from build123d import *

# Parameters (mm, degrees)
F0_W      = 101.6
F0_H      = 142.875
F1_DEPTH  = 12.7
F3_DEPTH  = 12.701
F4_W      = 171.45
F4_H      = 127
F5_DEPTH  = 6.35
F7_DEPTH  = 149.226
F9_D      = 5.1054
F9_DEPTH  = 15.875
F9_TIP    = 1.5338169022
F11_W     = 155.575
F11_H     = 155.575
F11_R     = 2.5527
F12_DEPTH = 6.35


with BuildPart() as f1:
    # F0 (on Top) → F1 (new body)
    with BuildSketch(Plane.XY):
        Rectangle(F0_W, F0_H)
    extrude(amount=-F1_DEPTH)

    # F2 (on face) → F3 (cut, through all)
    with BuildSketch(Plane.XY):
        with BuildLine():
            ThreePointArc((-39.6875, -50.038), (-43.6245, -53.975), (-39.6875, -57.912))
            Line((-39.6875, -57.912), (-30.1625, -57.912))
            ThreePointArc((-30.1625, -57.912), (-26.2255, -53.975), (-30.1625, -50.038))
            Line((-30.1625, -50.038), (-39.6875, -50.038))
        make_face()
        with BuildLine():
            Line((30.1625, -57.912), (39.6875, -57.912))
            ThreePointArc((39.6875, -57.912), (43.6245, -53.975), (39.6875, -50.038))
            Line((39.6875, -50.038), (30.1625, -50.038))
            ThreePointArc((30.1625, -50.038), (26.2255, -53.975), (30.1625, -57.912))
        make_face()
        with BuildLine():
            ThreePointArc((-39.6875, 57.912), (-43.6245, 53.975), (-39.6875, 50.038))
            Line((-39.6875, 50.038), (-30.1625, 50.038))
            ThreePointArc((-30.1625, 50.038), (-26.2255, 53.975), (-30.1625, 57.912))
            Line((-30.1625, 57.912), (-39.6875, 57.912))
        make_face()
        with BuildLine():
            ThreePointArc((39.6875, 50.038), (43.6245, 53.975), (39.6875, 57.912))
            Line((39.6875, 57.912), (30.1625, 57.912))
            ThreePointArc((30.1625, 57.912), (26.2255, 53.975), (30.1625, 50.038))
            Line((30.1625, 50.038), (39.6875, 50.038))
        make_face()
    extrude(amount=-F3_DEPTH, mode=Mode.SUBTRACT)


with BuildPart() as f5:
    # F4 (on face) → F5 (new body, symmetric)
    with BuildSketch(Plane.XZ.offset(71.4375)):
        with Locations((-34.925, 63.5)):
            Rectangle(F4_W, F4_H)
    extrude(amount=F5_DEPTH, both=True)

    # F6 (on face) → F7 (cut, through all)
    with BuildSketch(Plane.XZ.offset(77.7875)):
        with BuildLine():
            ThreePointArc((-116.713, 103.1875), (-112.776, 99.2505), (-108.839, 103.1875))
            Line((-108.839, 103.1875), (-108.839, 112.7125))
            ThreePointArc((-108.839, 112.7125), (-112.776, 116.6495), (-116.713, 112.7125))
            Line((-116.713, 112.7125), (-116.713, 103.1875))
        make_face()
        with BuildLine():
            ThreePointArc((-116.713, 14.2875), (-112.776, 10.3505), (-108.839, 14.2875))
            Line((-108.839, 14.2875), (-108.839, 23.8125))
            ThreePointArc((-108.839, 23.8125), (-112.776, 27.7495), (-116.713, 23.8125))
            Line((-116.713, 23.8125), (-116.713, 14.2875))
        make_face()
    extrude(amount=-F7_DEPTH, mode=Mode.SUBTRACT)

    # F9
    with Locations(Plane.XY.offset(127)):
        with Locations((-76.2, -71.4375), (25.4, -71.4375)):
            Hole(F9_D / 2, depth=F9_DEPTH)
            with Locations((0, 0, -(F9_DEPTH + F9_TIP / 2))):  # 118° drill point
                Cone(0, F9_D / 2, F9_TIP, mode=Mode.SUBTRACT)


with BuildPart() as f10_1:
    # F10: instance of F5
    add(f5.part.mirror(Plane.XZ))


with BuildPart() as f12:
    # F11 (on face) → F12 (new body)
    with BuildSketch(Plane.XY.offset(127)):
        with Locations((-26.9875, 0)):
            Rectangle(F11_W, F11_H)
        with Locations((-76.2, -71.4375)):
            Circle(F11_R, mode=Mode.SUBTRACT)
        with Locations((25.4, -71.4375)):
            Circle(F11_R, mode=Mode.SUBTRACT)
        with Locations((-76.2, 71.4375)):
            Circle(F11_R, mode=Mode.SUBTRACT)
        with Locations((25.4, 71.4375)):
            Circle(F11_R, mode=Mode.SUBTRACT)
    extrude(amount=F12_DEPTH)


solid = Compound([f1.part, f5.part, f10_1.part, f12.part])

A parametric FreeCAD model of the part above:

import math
import FreeCAD as App
import Part
import Sketcher
Q = App.Units.Quantity

doc = App.newDocument("Part")
params = doc.addObject("Spreadsheet::Sheet", "Params")
for row, (alias, value) in enumerate([
    ("sketch1_width", "4 in"),
    ("sketch1_height", "5.625 in"),
    ("pad1_length", "0.5 in"),
    ("sketch2_radius", "0.155 in"),
    ("sketch2_width", "0.375 in"),
    ("sketch3_height", "5 in"),
    ("sketch3_width", "6.75 in"),
    ("pad2_length", "0.5 in"),
    ("sketch4_radius", "0.155 in"),
    ("sketch4_height", "0.375 in"),
    ("sketch5_diameter", "0.201 in"),
    ("hole_diameter", "0.201 in"),
    ("hole_depth", "0.625 in"),
    ("sketch6_diameter", "0.201 in"),
    ("sketch6_width", "6.125 in"),
    ("pad3_length", "0.25 in"),
], start=1):
    params.set(f"A{row}", alias)
    params.set(f"B{row}", "=" + value)
    params.setAlias(f"B{row}", alias)

body = doc.addObject("PartDesign::Body", "Body")

# Sketch on XY plane
sketch1 = body.newObject("Sketcher::SketchObject", "Sketch")
sketch1.AttachmentSupport = (doc.getObject("XY_Plane"), [""])
sketch1.MapMode = "FlatFace"
sketch1.addGeometry([
    Part.LineSegment(App.Vector(-51, 71, 0), App.Vector(-51, -71, 0)),
    Part.LineSegment(App.Vector(-51, -71, 0), App.Vector(51, -71, 0)),
    Part.LineSegment(App.Vector(51, -71, 0), App.Vector(51, 71, 0)),
    Part.LineSegment(App.Vector(51, 71, 0), App.Vector(-51, 71, 0)),
], False)
sketch1.addConstraint([
    Sketcher.Constraint("Coincident", 0, 2, 1, 1),
    Sketcher.Constraint("Coincident", 1, 2, 2, 1),
    Sketcher.Constraint("Coincident", 2, 2, 3, 1),
    Sketcher.Constraint("Coincident", 3, 2, 0, 1),
    Sketcher.Constraint("Vertical", 0),
    Sketcher.Constraint("Horizontal", 1),
    Sketcher.Constraint("Vertical", 2),
    Sketcher.Constraint("Horizontal", 3),
    Sketcher.Constraint("Symmetric", 0, 2, 2, 2, -1, 1),
    Sketcher.Constraint("DistanceX", 1, 1, 1, 2, Q("4 in")),
    Sketcher.Constraint("DistanceY", 0, 2, 0, 1, Q("5.625 in")),
])
sketch1.setExpression("Constraints[9]", "Params.sketch1_width")
sketch1.setExpression("Constraints[10]", "Params.sketch1_height")
pad1 = body.newObject("PartDesign::Pad", "Pad")
pad1.Profile = sketch1
pad1.setExpression("Length", "Params.pad1_length")
pad1.Reversed = True

# Sketch on XY plane
sketch2 = body.newObject("Sketcher::SketchObject", "Sketch001")
sketch2.AttachmentSupport = (doc.getObject("XY_Plane"), [""])
sketch2.MapMode = "FlatFace"
sketch2.addGeometry([
    Part.ArcOfCircle(Part.Circle(App.Vector(-39.7, -54, 0), App.Vector(0, 0, 1), 3.9), math.radians(90), math.radians(270)),  # 0
    Part.LineSegment(App.Vector(-39.7, -57.9, 0), App.Vector(-30.2, -57.9, 0)),  # 1
    Part.ArcOfCircle(Part.Circle(App.Vector(-30.2, -54, 0), App.Vector(0, 0, 1), 3.9), math.radians(-90), math.radians(90)),  # 2
    Part.LineSegment(App.Vector(-30.2, -50, 0), App.Vector(-39.7, -50, 0)),  # 3
    Part.LineSegment(App.Vector(30.2, -57.9, 0), App.Vector(39.7, -57.9, 0)),  # 4
    Part.ArcOfCircle(Part.Circle(App.Vector(39.7, -54, 0), App.Vector(0, 0, 1), 3.9), math.radians(-90), math.radians(90)),  # 5
    Part.LineSegment(App.Vector(39.7, -50, 0), App.Vector(30.2, -50, 0)),  # 6
    Part.ArcOfCircle(Part.Circle(App.Vector(30.2, -54, 0), App.Vector(0, 0, 1), 3.9), math.radians(90), math.radians(270)),  # 7
    Part.ArcOfCircle(Part.Circle(App.Vector(-39.7, 54, 0), App.Vector(0, 0, 1), 3.9), math.radians(90), math.radians(270)),  # 8
    Part.LineSegment(App.Vector(-39.7, 50, 0), App.Vector(-30.2, 50, 0)),  # 9
    Part.ArcOfCircle(Part.Circle(App.Vector(-30.2, 54, 0), App.Vector(0, 0, 1), 3.9), math.radians(-90), math.radians(90)),  # 10
    Part.LineSegment(App.Vector(-30.2, 57.9, 0), App.Vector(-39.7, 57.9, 0)),  # 11
    Part.ArcOfCircle(Part.Circle(App.Vector(39.7, 54, 0), App.Vector(0, 0, 1), 3.9), math.radians(-90), math.radians(90)),  # 12
    Part.LineSegment(App.Vector(39.7, 57.9, 0), App.Vector(30.2, 57.9, 0)),  # 13
    Part.ArcOfCircle(Part.Circle(App.Vector(30.2, 54, 0), App.Vector(0, 0, 1), 3.9), math.radians(90), math.radians(270)),  # 14
    Part.LineSegment(App.Vector(30.2, 50, 0), App.Vector(39.7, 50, 0)),  # 15
], False)
sketch2.addConstraint([
    Sketcher.Constraint("Tangent", 0, 2, 1, 1),
    Sketcher.Constraint("Tangent", 1, 2, 2, 1),
    Sketcher.Constraint("Tangent", 2, 2, 3, 1),
    Sketcher.Constraint("Tangent", 3, 2, 0, 1),
    Sketcher.Constraint("Tangent", 4, 2, 5, 1),
    Sketcher.Constraint("Tangent", 5, 2, 6, 1),
    Sketcher.Constraint("Tangent", 6, 2, 7, 1),
    Sketcher.Constraint("Tangent", 7, 2, 4, 1),
    Sketcher.Constraint("Tangent", 8, 2, 9, 1),
    Sketcher.Constraint("Tangent", 9, 2, 10, 1),
    Sketcher.Constraint("Tangent", 10, 2, 11, 1),
    Sketcher.Constraint("Tangent", 11, 2, 8, 1),
    Sketcher.Constraint("Tangent", 12, 2, 13, 1),
    Sketcher.Constraint("Tangent", 13, 2, 14, 1),
    Sketcher.Constraint("Tangent", 14, 2, 15, 1),
    Sketcher.Constraint("Tangent", 15, 2, 12, 1),
    Sketcher.Constraint("Horizontal", 1),
    Sketcher.Constraint("Horizontal", 3),
    Sketcher.Constraint("Horizontal", 4),
    Sketcher.Constraint("Horizontal", 6),
    Sketcher.Constraint("Horizontal", 9),
    Sketcher.Constraint("Horizontal", 11),
    Sketcher.Constraint("Horizontal", 13),
    Sketcher.Constraint("Horizontal", 15),
    Sketcher.Constraint("Equal", 2, 5),
    Sketcher.Constraint("Equal", 7, 8),
    Sketcher.Constraint("Equal", 10, 12),
    Sketcher.Constraint("Symmetric", 5, 3, 8, 3, -1, 1),
    Sketcher.Constraint("Symmetric", 0, 3, 12, 3, -1, 1),
    Sketcher.Constraint("Symmetric", 0, 3, 5, 3, -2),
    Sketcher.Constraint("Vertical", 2, 3, 10, 3),
    Sketcher.Constraint("Vertical", 7, 3, 14, 3),
    Sketcher.Constraint("Equal", 3, 4),
    Sketcher.Constraint("Radius", 0, Q("0.155 in")),
    Sketcher.Constraint("DistanceX", 1, 1, 1, 2, Q("0.375 in")),
    Sketcher.Constraint("DistanceY", 0, 2, -1, 1, Q("2.28 in")),
    Sketcher.Constraint("DistanceX", 2, 3, 5, 3, Q("2.75 in")),
])
sketch2.setExpression("Constraints[33]", "Params.sketch2_radius")
sketch2.setExpression("Constraints[34]", "Params.sketch2_width")
pocket1 = body.newObject("PartDesign::Pocket", "Pocket")
pocket1.Profile = sketch2
pocket1.Type = "ThroughAll"
body2 = doc.addObject("PartDesign::Body", "Body001")

# Sketch on XZ plane
sketch3 = body2.newObject("Sketcher::SketchObject", "Sketch002")
sketch3.AttachmentSupport = (doc.getObject("XZ_Plane001"), [""])
sketch3.MapMode = "FlatFace"
sketch3.AttachmentOffset = App.Placement(App.Vector(0, 0, 2.8125 * 25.4), App.Rotation())
sketch3.addGeometry([
    Part.LineSegment(App.Vector(-121, 127, 0), App.Vector(-121, 0, 0)),
    Part.LineSegment(App.Vector(-121, 0, 0), App.Vector(51, 0, 0)),
    Part.LineSegment(App.Vector(51, 0, 0), App.Vector(51, 127, 0)),
    Part.LineSegment(App.Vector(51, 127, 0), App.Vector(-121, 127, 0)),
], False)
sketch3.addConstraint([
    Sketcher.Constraint("Coincident", 0, 2, 1, 1),
    Sketcher.Constraint("Coincident", 1, 2, 2, 1),
    Sketcher.Constraint("Coincident", 2, 2, 3, 1),
    Sketcher.Constraint("Coincident", 3, 2, 0, 1),
    Sketcher.Constraint("Vertical", 0),
    Sketcher.Constraint("Horizontal", 1),
    Sketcher.Constraint("Vertical", 2),
    Sketcher.Constraint("Horizontal", 3),
    Sketcher.Constraint("PointOnObject", 0, 2, -1),
    Sketcher.Constraint("DistanceY", 0, 2, 0, 1, Q("5 in")),
    Sketcher.Constraint("DistanceX", -1, 1, 1, 2, Q("2 in")),
    Sketcher.Constraint("DistanceX", 1, 1, 1, 2, Q("6.75 in")),
])
sketch3.setExpression("Constraints[9]", "Params.sketch3_height")
sketch3.setExpression("Constraints[11]", "Params.sketch3_width")
pad2 = body2.newObject("PartDesign::Pad", "Pad001")
pad2.Profile = sketch3
pad2.setExpression("Length", "Params.pad2_length")
pad2.Midplane = True

# Sketch on XZ plane
sketch4 = body2.newObject("Sketcher::SketchObject", "Sketch003")
sketch4.AttachmentSupport = (doc.getObject("XZ_Plane001"), [""])
sketch4.MapMode = "FlatFace"
sketch4.AttachmentOffset = App.Placement(App.Vector(0, 0, 3.0625 * 25.4), App.Rotation())
sketch4.addGeometry([
    Part.ArcOfCircle(Part.Circle(App.Vector(-112.8, 103.2, 0), App.Vector(0, 0, 1), 3.9), math.radians(180), math.radians(360)),  # 0
    Part.LineSegment(App.Vector(-108.8, 103.2, 0), App.Vector(-108.8, 112.7, 0)),  # 1
    Part.ArcOfCircle(Part.Circle(App.Vector(-112.8, 112.7, 0), App.Vector(0, 0, 1), 3.9), math.radians(0), math.radians(180)),  # 2
    Part.LineSegment(App.Vector(-116.7, 112.7, 0), App.Vector(-116.7, 103.2, 0)),  # 3
    Part.ArcOfCircle(Part.Circle(App.Vector(-112.8, 14.3, 0), App.Vector(0, 0, 1), 3.9), math.radians(180), math.radians(360)),  # 4
    Part.LineSegment(App.Vector(-108.8, 14.3, 0), App.Vector(-108.8, 23.8, 0)),  # 5
    Part.ArcOfCircle(Part.Circle(App.Vector(-112.8, 23.8, 0), App.Vector(0, 0, 1), 3.9), math.radians(0), math.radians(180)),  # 6
    Part.LineSegment(App.Vector(-116.7, 23.8, 0), App.Vector(-116.7, 14.3, 0)),  # 7
], False)
sketch4.addConstraint([
    Sketcher.Constraint("Tangent", 0, 2, 1, 1),
    Sketcher.Constraint("Tangent", 1, 2, 2, 1),
    Sketcher.Constraint("Tangent", 2, 2, 3, 1),
    Sketcher.Constraint("Tangent", 3, 2, 0, 1),
    Sketcher.Constraint("Tangent", 4, 2, 5, 1),
    Sketcher.Constraint("Tangent", 5, 2, 6, 1),
    Sketcher.Constraint("Tangent", 6, 2, 7, 1),
    Sketcher.Constraint("Tangent", 7, 2, 4, 1),
    Sketcher.Constraint("Vertical", 1),
    Sketcher.Constraint("Vertical", 3),
    Sketcher.Constraint("Vertical", 5),
    Sketcher.Constraint("Vertical", 7),
    Sketcher.Constraint("Equal", 2, 4),
    Sketcher.Constraint("Vertical", 2, 3, 4, 3),
    Sketcher.Constraint("Equal", 3, 5),
    Sketcher.Constraint("Radius", 0, Q("0.155 in")),
    Sketcher.Constraint("DistanceY", 4, 3, 0, 3, Q("3.5 in")),
    Sketcher.Constraint("DistanceY", 1, 1, 1, 2, Q("0.375 in")),
    Sketcher.Constraint("DistanceX", 0, 3, -1, 1, Q("4.44 in")),
    Sketcher.Constraint("DistanceY", -1, 1, 0, 3, Q("4.0625 in")),
])
sketch4.setExpression("Constraints[15]", "Params.sketch4_radius")
sketch4.setExpression("Constraints[17]", "Params.sketch4_height")
pocket2 = body2.newObject("PartDesign::Pocket", "Pocket001")
pocket2.Profile = sketch4
pocket2.Type = "ThroughAll"

# Sketch on XY plane
sketch5 = body2.newObject("Sketcher::SketchObject", "Sketch004")
sketch5.AttachmentSupport = (doc.getObject("XY_Plane001"), [""])
sketch5.MapMode = "FlatFace"
sketch5.AttachmentOffset = App.Placement(App.Vector(0, 0, 5 * 25.4), App.Rotation())
sketch5.addGeometry([
    Part.Circle(App.Vector(-76.2, -71.4, 0), App.Vector(0, 0, 1), 2.6),
    Part.Circle(App.Vector(25.4, -71.4, 0), App.Vector(0, 0, 1), 2.6),
], False)
sketch5.addConstraint([
    Sketcher.Constraint("Equal", 0, 1),
    Sketcher.Constraint("Horizontal", 0, 3, 1, 3),
    Sketcher.Constraint("Diameter", 0, Q("0.201 in")),
    Sketcher.Constraint("DistanceX", 0, 3, -1, 1, Q("3 in")),
    Sketcher.Constraint("DistanceX", -1, 1, 1, 3, Q("1 in")),
    Sketcher.Constraint("DistanceY", 0, 3, -1, 1, Q("2.8125 in")),
])
sketch5.setExpression("Constraints[2]", "Params.sketch5_diameter")
doc.recompute()
hole = body2.newObject("PartDesign::Hole", "Hole")
hole.Profile = sketch5
hole.ThreadType = "None"
hole.setExpression("Diameter", "Params.hole_diameter")
hole.DepthType = "Dimension"
hole.setExpression("Depth", "Params.hole_depth")
hole.DrillPoint = "Angled"
hole.DrillPointAngle = 118
body3 = doc.addObject("PartDesign::Body", "Body002")
doc.recompute()

mirroring = doc.addObject("Part::Mirroring", "Mirroring")
mirroring.Source = body2
mirroring.Base = App.Vector(0, 0, 0)
mirroring.Normal = App.Vector(0, -1, 0)
body3.BaseFeature = mirroring
doc.recompute()
body4 = doc.addObject("PartDesign::Body", "Body003")

# Sketch on XY plane
sketch6 = body4.newObject("Sketcher::SketchObject", "Sketch005")
sketch6.AttachmentSupport = (doc.getObject("XY_Plane003"), [""])
sketch6.MapMode = "FlatFace"
sketch6.AttachmentOffset = App.Placement(App.Vector(0, 0, 5 * 25.4), App.Rotation())
sketch6.addGeometry([
    Part.LineSegment(App.Vector(-104.8, 77.8, 0), App.Vector(-104.8, -77.8, 0)),  # 0
    Part.LineSegment(App.Vector(-104.8, -77.8, 0), App.Vector(50.8, -77.8, 0)),  # 1
    Part.LineSegment(App.Vector(50.8, -77.8, 0), App.Vector(50.8, 77.8, 0)),  # 2
    Part.LineSegment(App.Vector(50.8, 77.8, 0), App.Vector(-104.8, 77.8, 0)),  # 3
    Part.Circle(App.Vector(-76.2, -71.4, 0), App.Vector(0, 0, 1), 2.6),  # 4
    Part.Circle(App.Vector(25.4, -71.4, 0), App.Vector(0, 0, 1), 2.6),  # 5
    Part.Circle(App.Vector(-76.2, 71.4, 0), App.Vector(0, 0, 1), 2.6),  # 6
    Part.Circle(App.Vector(25.4, 71.4, 0), App.Vector(0, 0, 1), 2.6),  # 7
], False)
sketch6.addConstraint([
    Sketcher.Constraint("Coincident", 0, 2, 1, 1),
    Sketcher.Constraint("Coincident", 1, 2, 2, 1),
    Sketcher.Constraint("Coincident", 2, 2, 3, 1),
    Sketcher.Constraint("Coincident", 3, 2, 0, 1),
    Sketcher.Constraint("Vertical", 0),
    Sketcher.Constraint("Horizontal", 1),
    Sketcher.Constraint("Vertical", 2),
    Sketcher.Constraint("Horizontal", 3),
    Sketcher.Constraint("Equal", 4, 5),
    Sketcher.Constraint("Equal", 5, 6),
    Sketcher.Constraint("Equal", 6, 7),
    Sketcher.Constraint("Symmetric", 4, 3, 6, 3, -1),
    Sketcher.Constraint("Symmetric", 5, 3, 7, 3, -1),
    Sketcher.Constraint("Horizontal", 4, 3, 5, 3),
    Sketcher.Constraint("Equal", 3, 0),
    Sketcher.Constraint("Diameter", 4, Q("0.201 in")),
    Sketcher.Constraint("DistanceX", 4, 3, -1, 1, Q("3 in")),
    Sketcher.Constraint("DistanceX", -1, 1, 5, 3, Q("1 in")),
    Sketcher.Constraint("DistanceX", -1, 1, 1, 2, Q("2 in")),
    Sketcher.Constraint("DistanceX", 1, 1, 1, 2, Q("6.125 in")),
    Sketcher.Constraint("DistanceY", 0, 2, 4, 3, Q("0.25 in")),
    Sketcher.Constraint("DistanceY", 7, 3, 2, 2, Q("0.25 in")),
])
sketch6.setExpression("Constraints[15]", "Params.sketch6_diameter")
sketch6.setExpression("Constraints[19]", "Params.sketch6_width")
pad3 = body4.newObject("PartDesign::Pad", "Pad002")
pad3.Profile = sketch6
pad3.setExpression("Length", "Params.pad3_length")
mirroring.Visibility = False

doc.recompute()
